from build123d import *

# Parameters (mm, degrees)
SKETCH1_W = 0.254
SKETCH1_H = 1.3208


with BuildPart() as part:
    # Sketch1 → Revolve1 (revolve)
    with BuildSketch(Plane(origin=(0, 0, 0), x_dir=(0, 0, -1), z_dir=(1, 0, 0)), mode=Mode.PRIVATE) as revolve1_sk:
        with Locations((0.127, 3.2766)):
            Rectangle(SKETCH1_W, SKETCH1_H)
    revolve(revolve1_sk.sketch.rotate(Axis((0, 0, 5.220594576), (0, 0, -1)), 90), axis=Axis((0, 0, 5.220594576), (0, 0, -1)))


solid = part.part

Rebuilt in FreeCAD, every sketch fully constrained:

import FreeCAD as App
import Part
import Sketcher
Q = App.Units.Quantity

doc = App.newDocument("Part")
params = doc.addObject("Spreadsheet::Sheet", "Params")
for row, (alias, value) in enumerate([
    ("sketch1_height", "0.01 in"),
    ("sketch1_width", "0.052 in"),
    ("revolution_angle", "360 deg"),
], start=1):
    params.set(f"A{row}", alias)
    params.set(f"B{row}", "=" + value)
    params.setAlias(f"B{row}", alias)

body = doc.addObject("PartDesign::Body", "Body")

# Sketch on YZ plane
sketch1 = body.newObject("Sketcher::SketchObject", "Sketch")
sketch1.AttachmentSupport = (doc.getObject("YZ_Plane"), [""])
sketch1.MapMode = "FlatFace"
sketch1.addGeometry([
    Part.LineSegment(App.Vector(3.937, 0, 0), App.Vector(2.6162, 0, 0)),
    Part.LineSegment(App.Vector(2.6162, 0, 0), App.Vector(2.6162, -0.254, 0)),
    Part.LineSegment(App.Vector(2.6162, -0.254, 0), App.Vector(3.937, -0.254, 0)),
    Part.LineSegment(App.Vector(3.937, -0.254, 0), App.Vector(3.937, 0, 0)),
], False)
sketch1.addConstraint([
    Sketcher.Constraint("Coincident", 0, 2, 1, 1),
    Sketcher.Constraint("Coincident", 1, 2, 2, 1),
    Sketcher.Constraint("Coincident", 2, 2, 3, 1),
    Sketcher.Constraint("Coincident", 3, 2, 0, 1),
    Sketcher.Constraint("Horizontal", 0),
    Sketcher.Constraint("Vertical", 1),
    Sketcher.Constraint("Horizontal", 2),
    Sketcher.Constraint("Vertical", 3),
    Sketcher.Constraint("PointOnObject", 0, 2, -1),
    Sketcher.Constraint("DistanceY", 1, 2, 1, 1, Q("0.01 in")),
    Sketcher.Constraint("DistanceX", 0, 2, 0, 1, Q("0.052 in")),
    Sketcher.Constraint("DistanceX", -1, 1, 0, 2, Q("0.103 in")),
])
sketch1.setExpression("Constraints[9]", "Params.sketch1_height")
sketch1.setExpression("Constraints[10]", "Params.sketch1_width")
revolution = body.newObject("PartDesign::Revolution", "Revolution")
revolution.Profile = sketch1
revolution.ReferenceAxis = (sketch1, ["V_Axis"])
revolution.setExpression("Angle", "Params.revolution_angle")

doc.recompute()
